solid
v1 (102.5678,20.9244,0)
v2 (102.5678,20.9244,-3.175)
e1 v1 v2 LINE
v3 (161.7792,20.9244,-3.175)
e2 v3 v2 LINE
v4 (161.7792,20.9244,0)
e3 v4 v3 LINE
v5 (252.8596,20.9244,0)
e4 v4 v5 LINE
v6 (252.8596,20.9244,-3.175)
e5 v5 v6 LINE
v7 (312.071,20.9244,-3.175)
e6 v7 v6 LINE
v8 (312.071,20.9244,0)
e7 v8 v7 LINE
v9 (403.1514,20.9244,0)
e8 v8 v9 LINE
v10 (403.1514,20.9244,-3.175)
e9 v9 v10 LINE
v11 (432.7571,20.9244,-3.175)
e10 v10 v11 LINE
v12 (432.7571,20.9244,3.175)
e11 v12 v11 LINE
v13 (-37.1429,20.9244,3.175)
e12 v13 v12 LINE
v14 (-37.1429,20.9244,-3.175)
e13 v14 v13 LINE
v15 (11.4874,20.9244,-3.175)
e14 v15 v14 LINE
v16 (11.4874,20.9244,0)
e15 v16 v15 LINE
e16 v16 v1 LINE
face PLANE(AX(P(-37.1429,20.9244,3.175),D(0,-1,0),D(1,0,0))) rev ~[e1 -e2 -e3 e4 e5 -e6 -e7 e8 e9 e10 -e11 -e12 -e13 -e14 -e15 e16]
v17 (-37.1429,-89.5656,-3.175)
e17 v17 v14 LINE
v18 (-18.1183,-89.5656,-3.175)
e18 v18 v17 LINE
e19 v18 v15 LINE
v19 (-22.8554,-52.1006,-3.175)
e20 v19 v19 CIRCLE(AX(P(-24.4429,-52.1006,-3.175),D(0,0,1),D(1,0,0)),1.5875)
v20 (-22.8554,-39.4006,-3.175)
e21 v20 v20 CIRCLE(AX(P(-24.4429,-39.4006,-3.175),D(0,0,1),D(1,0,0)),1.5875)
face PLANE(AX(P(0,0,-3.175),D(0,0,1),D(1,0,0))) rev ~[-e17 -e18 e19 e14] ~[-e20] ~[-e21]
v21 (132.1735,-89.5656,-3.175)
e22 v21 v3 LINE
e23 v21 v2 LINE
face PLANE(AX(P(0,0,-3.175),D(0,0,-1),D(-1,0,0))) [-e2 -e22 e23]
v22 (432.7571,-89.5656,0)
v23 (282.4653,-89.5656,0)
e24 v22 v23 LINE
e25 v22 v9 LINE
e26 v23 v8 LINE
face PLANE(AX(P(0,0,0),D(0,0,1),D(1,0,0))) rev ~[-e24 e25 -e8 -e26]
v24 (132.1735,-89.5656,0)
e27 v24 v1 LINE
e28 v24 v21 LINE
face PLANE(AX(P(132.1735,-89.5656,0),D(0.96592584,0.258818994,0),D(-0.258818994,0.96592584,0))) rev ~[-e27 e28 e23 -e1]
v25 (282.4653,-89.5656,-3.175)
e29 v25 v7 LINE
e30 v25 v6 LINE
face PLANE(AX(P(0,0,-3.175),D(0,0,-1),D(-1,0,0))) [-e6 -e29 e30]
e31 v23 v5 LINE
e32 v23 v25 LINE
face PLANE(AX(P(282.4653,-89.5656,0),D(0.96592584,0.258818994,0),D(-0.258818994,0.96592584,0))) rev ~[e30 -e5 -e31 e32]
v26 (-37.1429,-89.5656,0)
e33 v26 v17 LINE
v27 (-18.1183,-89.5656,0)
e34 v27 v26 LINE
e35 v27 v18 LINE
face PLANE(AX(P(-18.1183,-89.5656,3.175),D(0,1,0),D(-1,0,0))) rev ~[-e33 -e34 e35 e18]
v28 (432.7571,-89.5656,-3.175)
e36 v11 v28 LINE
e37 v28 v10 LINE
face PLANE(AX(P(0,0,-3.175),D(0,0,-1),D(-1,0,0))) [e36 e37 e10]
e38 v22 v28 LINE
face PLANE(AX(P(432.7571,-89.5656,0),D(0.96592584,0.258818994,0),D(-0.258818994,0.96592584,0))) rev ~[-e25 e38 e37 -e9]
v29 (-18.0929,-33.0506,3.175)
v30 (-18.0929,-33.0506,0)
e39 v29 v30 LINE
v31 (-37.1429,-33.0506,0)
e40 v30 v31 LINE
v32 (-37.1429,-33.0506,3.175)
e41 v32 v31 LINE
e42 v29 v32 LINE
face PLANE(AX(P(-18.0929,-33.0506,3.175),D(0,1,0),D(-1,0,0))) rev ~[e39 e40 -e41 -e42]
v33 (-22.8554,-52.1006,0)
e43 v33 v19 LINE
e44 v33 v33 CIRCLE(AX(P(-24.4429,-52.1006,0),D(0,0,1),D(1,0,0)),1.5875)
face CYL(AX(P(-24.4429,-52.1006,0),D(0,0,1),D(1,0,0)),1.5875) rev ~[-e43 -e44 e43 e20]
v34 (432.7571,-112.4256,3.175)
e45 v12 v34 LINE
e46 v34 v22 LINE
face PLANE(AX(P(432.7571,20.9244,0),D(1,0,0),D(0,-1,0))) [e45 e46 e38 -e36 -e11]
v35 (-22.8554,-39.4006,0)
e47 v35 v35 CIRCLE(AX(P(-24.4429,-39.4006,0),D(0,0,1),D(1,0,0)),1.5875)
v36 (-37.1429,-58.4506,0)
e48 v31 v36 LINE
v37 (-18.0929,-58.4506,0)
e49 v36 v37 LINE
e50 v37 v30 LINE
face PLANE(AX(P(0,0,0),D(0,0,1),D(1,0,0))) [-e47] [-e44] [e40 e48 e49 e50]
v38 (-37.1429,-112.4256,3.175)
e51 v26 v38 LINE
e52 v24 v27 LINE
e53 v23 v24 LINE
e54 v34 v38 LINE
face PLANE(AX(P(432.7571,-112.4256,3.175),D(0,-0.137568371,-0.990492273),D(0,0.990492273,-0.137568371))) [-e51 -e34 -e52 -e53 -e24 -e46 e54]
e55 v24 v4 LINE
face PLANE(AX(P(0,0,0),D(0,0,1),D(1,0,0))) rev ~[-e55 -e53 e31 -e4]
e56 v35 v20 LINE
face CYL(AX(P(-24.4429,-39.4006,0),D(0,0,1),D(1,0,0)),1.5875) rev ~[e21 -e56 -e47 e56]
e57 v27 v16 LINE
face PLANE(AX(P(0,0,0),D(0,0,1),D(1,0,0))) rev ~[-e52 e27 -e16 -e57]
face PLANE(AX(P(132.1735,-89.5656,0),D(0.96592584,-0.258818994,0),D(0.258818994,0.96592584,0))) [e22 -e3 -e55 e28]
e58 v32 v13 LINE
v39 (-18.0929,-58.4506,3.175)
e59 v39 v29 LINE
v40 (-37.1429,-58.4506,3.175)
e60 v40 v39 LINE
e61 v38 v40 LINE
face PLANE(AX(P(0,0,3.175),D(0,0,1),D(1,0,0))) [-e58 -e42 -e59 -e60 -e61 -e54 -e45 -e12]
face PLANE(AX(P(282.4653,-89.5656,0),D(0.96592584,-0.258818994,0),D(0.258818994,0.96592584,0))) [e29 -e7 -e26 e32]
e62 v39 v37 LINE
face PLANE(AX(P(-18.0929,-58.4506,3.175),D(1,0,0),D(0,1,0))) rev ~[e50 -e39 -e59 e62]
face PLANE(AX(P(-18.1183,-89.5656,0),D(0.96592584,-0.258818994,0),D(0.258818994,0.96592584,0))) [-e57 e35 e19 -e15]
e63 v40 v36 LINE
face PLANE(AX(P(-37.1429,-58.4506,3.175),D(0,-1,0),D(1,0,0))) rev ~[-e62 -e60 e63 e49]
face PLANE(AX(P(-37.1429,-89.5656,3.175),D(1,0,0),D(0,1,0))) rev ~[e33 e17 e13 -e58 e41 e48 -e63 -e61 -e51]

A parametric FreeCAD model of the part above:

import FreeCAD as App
import Part
import Sketcher
Q = App.Units.Quantity

doc = App.newDocument("Part")
body = doc.addObject("PartDesign::Body", "Body")

# Sketch on XY plane
sketch1 = body.newObject("Sketcher::SketchObject", "Sketch")
sketch1.AttachmentSupport = (doc.getObject("XY_Plane"), [""])
sketch1.MapMode = "FlatFace"
sketch1.addGeometry([
    Part.LineSegment(App.Vector(433, 21, 0), App.Vector(-37, 21, 0)),
    Part.LineSegment(App.Vector(-37, 21, 0), App.Vector(-37, -112, 0)),
    Part.LineSegment(App.Vector(-37, -112, 0), App.Vector(433, -112, 0)),
    Part.LineSegment(App.Vector(433, -112, 0), App.Vector(433, 21, 0)),
], False)
sketch1.addConstraint([
    Sketcher.Constraint("Coincident", 0, 2, 1, 1),
    Sketcher.Constraint("Coincident", 1, 2, 2, 1),
    Sketcher.Constraint("Coincident", 2, 2, 3, 1),
    Sketcher.Constraint("Coincident", 3, 2, 0, 1),
    Sketcher.Constraint("Horizontal", 0),
    Sketcher.Constraint("Vertical", 1),
    Sketcher.Constraint("Horizontal", 2),
    Sketcher.Constraint("Vertical", 3),
    Sketcher.Constraint("DistanceX", 0, 2, 0, 1, Q("18.5 in")),
    Sketcher.Constraint("DistanceY", 1, 2, 1, 1, Q("5.25 in")),
    Sketcher.Constraint("DistanceY", -1, 1, 0, 2, Q("0.8238 in")),
    Sketcher.Constraint("DistanceX", 0, 2, -1, 1, Q("37.143 mm")),
])
pad1 = body.newObject("PartDesign::Pad", "Pad")
pad1.Profile = sketch1
pad1.Length = Q("0.125 in")

# Sketch on YZ plane
sketch2 = body.newObject("Sketcher::SketchObject", "Sketch001")
sketch2.AttachmentSupport = (doc.getObject("YZ_Plane"), [""])
sketch2.MapMode = "FlatFace"
sketch2.AttachmentOffset = App.Placement(App.Vector(0, 0, 432.7571), App.Rotation())
sketch2.addGeometry([
    Part.LineSegment(App.Vector(-112.4, 0, 0), App.Vector(-89.6, 0, 0)),
    Part.LineSegment(App.Vector(-89.6, 0, 0), App.Vector(-112.4, 3.2, 0)),
    Part.LineSegment(App.Vector(-112.4, 3.2, 0), App.Vector(-112.4, 0, 0)),
], False)
sketch2.addConstraint([
    Sketcher.Constraint("Coincident", 0, 2, 1, 1),
    Sketcher.Constraint("Coincident", 1, 2, 2, 1),
    Sketcher.Constraint("Coincident", 2, 2, 0, 1),
    Sketcher.Constraint("Horizontal", 0),
    Sketcher.Constraint("Vertical", 2),
    Sketcher.Constraint("PointOnObject", 0, 2, -1),
    Sketcher.Constraint("DistanceX", 0, 1, 0, 2, Q("0.9 in")),
    Sketcher.Constraint("DistanceY", 2, 2, 2, 1, Q("0.125 in")),
    Sketcher.Constraint("DistanceX", 0, 2, -1, 1, Q("3.5262 in")),
])
pocket1 = body.newObject("PartDesign::Pocket", "Pocket")
pocket1.Profile = sketch2
pocket1.Length = Q("18.75 in")

# Sketch on XY plane
sketch3 = body.newObject("Sketcher::SketchObject", "Sketch002")
sketch3.AttachmentSupport = (doc.getObject("XY_Plane"), [""])
sketch3.MapMode = "FlatFace"
sketch3.addGeometry([
    Part.LineSegment(App.Vector(433, 21, 0), App.Vector(433, -90, 0)),  # 0
    Part.LineSegment(App.Vector(433, -90, 0), App.Vector(403, 21, 0)),  # 1
    Part.LineSegment(App.Vector(403, 21, 0), App.Vector(433, 21, 0)),  # 2
    Part.LineSegment(App.Vector(312, 21, 0), App.Vector(282, -90, 0)),  # 3
    Part.LineSegment(App.Vector(282, -90, 0), App.Vector(253, 21, 0)),  # 4
    Part.LineSegment(App.Vector(253, 21, 0), App.Vector(312, 21, 0)),  # 5
    Part.LineSegment(App.Vector(162, 21, 0), App.Vector(132, -90, 0)),  # 6
    Part.LineSegment(App.Vector(132, -90, 0), App.Vector(103, 21, 0)),  # 7
    Part.LineSegment(App.Vector(103, 21, 0), App.Vector(162, 21, 0)),  # 8
    Part.LineSegment(App.Vector(11, 21, 0), App.Vector(-18, -90, 0)),  # 9
    Part.LineSegment(App.Vector(-18, -90, 0), App.Vector(-18, 21, 0)),  # 10
    Part.LineSegment(App.Vector(-18, 21, 0), App.Vector(11, 21, 0)),  # 11
], False)
sketch3.addConstraint([
    Sketcher.Constraint("Coincident", 0, 2, 1, 1),
    Sketcher.Constraint("Coincident", 1, 2, 2, 1),
    Sketcher.Constraint("Coincident", 2, 2, 0, 1),
    Sketcher.Constraint("Coincident", 3, 2, 4, 1),
    Sketcher.Constraint("Coincident", 4, 2, 5, 1),
    Sketcher.Constraint("Coincident", 5, 2, 3, 1),
    Sketcher.Constraint("Coincident", 6, 2, 7, 1),
    Sketcher.Constraint("Coincident", 7, 2, 8, 1),
    Sketcher.Constraint("Coincident", 8, 2, 6, 1),
    Sketcher.Constraint("Coincident", 9, 2, 10, 1),
    Sketcher.Constraint("Coincident", 10, 2, 11, 1),
    Sketcher.Constraint("Coincident", 11, 2, 9, 1),
    Sketcher.Constraint("Vertical", 0),
    Sketcher.Constraint("Horizontal", 2),
    Sketcher.Constraint("Horizontal", 5),
    Sketcher.Constraint("Horizontal", 8),
    Sketcher.Constraint("Vertical", 10),
    Sketcher.Constraint("Horizontal", 11),
    Sketcher.Constraint("Parallel", 1, 4),
    Sketcher.Constraint("Parallel", 3, 6),
    Sketcher.Constraint("Parallel", 4, 7),
    Sketcher.Constraint("Parallel", 6, 9),
    Sketcher.Constraint("Horizontal", 0, 2, 3, 2),
    Sketcher.Constraint("Horizontal", 2, 2, 4, 2),
    Sketcher.Constraint("Horizontal", 3, 2, 6, 2),
    Sketcher.Constraint("Horizontal", 5, 2, 7, 2),
    Sketcher.Constraint("Horizontal", 6, 2, 9, 2),
    Sketcher.Constraint("Horizontal", 8, 2, 10, 2),
    Sketcher.Constraint("Equal", 2, 11),
    Sketcher.Constraint("Angle", 1, Q("105 deg")),
    Sketcher.Constraint("DistanceX", 3, 2, 0, 2, Q("5.917 in")),
    Sketcher.Constraint("DistanceX", 6, 2, 3, 2, Q("5.917 in")),
    Sketcher.Constraint("DistanceX", 9, 2, 6, 2, Q("5.917 in")),
    Sketcher.Constraint("DistanceY", 0, 2, 0, 1, Q("4.35 in")),
    Sketcher.Constraint("DistanceY", 0, 2, -1, 1, Q("3.5262 in")),
    Sketcher.Constraint("DistanceX", -1, 1, 1, 2, Q("15.8721 in")),
])
pad2 = body.newObject("PartDesign::Pad", "Pad001")
pad2.Profile = sketch3
pad2.Length = Q("0.125 in")
pad2.Reversed = True

# Sketch on XY plane
sketch4 = body.newObject("Sketcher::SketchObject", "Sketch003")
sketch4.AttachmentSupport = (doc.getObject("XY_Plane"), [""])
sketch4.MapMode = "FlatFace"
sketch4.AttachmentOffset = App.Placement(App.Vector(0, 0, 0.125 * 25.4), App.Rotation())
sketch4.addGeometry([
    Part.LineSegment(App.Vector(-18, 21, 0), App.Vector(-37, 21, 0)),
    Part.LineSegment(App.Vector(-37, 21, 0), App.Vector(-37, -90, 0)),
    Part.LineSegment(App.Vector(-37, -90, 0), App.Vector(-18, -90, 0)),
    Part.LineSegment(App.Vector(-18, -90, 0), App.Vector(-18, 21, 0)),
], False)
sketch4.addConstraint([
    Sketcher.Constraint("Coincident", 0, 2, 1, 1),
    Sketcher.Constraint("Coincident", 1, 2, 2, 1),
    Sketcher.Constraint("Coincident", 2, 2, 3, 1),
    Sketcher.Constraint("Coincident", 3, 2, 0, 1),
    Sketcher.Constraint("Horizontal", 0),
    Sketcher.Constraint("Vertical", 1),
    Sketcher.Constraint("Horizontal", 2),
    Sketcher.Constraint("Vertical", 3),
    Sketcher.Constraint("DistanceY", 1, 2, 1, 1, Q("4.35 in")),
    Sketcher.Constraint("DistanceX", 0, 2, 0, 1, Q("0.749 in")),
    Sketcher.Constraint("DistanceY", -1, 1, 0, 2, Q("0.8238 in")),
    Sketcher.Constraint("DistanceX", 0, 2, -1, 1, Q("37.143 mm")),
])
pad3 = body.newObject("PartDesign::Pad", "Pad002")
pad3.Profile = sketch4
pad3.Length = Q("0.25 in")
pad3.Reversed = True

# Sketch on XY plane
sketch5 = body.newObject("Sketcher::SketchObject", "Sketch004")
sketch5.AttachmentSupport = (doc.getObject("XY_Plane"), [""])
sketch5.MapMode = "FlatFace"
sketch5.AttachmentOffset = App.Placement(App.Vector(0, 0, 0.125 * 25.4), App.Rotation())
sketch5.addGeometry([
    Part.LineSegment(App.Vector(-18, -58, 0), App.Vector(-18, -33, 0)),
    Part.LineSegment(App.Vector(-18, -33, 0), App.Vector(-37, -33, 0)),
    Part.LineSegment(App.Vector(-37, -33, 0), App.Vector(-37, -58, 0)),
    Part.LineSegment(App.Vector(-37, -58, 0), App.Vector(-18, -58, 0)),
], False)
sketch5.addConstraint([
    Sketcher.Constraint("Coincident", 0, 2, 1, 1),
    Sketcher.Constraint("Coincident", 1, 2, 2, 1),
    Sketcher.Constraint("Coincident", 2, 2, 3, 1),
    Sketcher.Constraint("Coincident", 3, 2, 0, 1),
    Sketcher.Constraint("Vertical", 0),
    Sketcher.Constraint("Horizontal", 1),
    Sketcher.Constraint("Vertical", 2),
    Sketcher.Constraint("Horizontal", 3),
    Sketcher.Constraint("DistanceY", 0, 1, 0, 2, Q("1 in")),
    Sketcher.Constraint("DistanceX", 1, 2, 1, 1, Q("0.75 in")),
    Sketcher.Constraint("DistanceY", 0, 2, -1, 1, Q("1.3012 in")),
    Sketcher.Constraint("DistanceX", 0, 2, -1, 1, Q("18.093 mm")),
])
pocket2 = body.newObject("PartDesign::Pocket", "Pocket001")
pocket2.Profile = sketch5
pocket2.Length = Q("0.125 in")

# Sketch on XY plane
sketch6 = body.newObject("Sketcher::SketchObject", "Sketch005")
sketch6.AttachmentSupport = (doc.getObject("XY_Plane"), [""])
sketch6.MapMode = "FlatFace"
sketch6.addGeometry([
    Part.Circle(App.Vector(-24.4, -39.4, 0), App.Vector(0, 0, 1), 1.6),
    Part.Circle(App.Vector(-24.4, -52.1, 0), App.Vector(0, 0, 1), 1.6),
], False)
sketch6.addConstraint([
    Sketcher.Constraint("Equal", 0, 1),
    Sketcher.Constraint("Vertical", 0, 3, 1, 3),
    Sketcher.Constraint("Diameter", 0, Q("0.125 in")),
    Sketcher.Constraint("DistanceY", 1, 3, 0, 3, Q("0.5 in")),
    Sketcher.Constraint("DistanceY", 0, 3, -1, 1, Q("1.5512 in")),
    Sketcher.Constraint("DistanceX", 0, 3, -1, 1, Q("24.443 mm")),
])
pocket3 = body.newObject("PartDesign::Pocket", "Pocket002")
pocket3.Profile = sketch6
pocket3.Length = Q("0.125 in")

doc.recompute()
